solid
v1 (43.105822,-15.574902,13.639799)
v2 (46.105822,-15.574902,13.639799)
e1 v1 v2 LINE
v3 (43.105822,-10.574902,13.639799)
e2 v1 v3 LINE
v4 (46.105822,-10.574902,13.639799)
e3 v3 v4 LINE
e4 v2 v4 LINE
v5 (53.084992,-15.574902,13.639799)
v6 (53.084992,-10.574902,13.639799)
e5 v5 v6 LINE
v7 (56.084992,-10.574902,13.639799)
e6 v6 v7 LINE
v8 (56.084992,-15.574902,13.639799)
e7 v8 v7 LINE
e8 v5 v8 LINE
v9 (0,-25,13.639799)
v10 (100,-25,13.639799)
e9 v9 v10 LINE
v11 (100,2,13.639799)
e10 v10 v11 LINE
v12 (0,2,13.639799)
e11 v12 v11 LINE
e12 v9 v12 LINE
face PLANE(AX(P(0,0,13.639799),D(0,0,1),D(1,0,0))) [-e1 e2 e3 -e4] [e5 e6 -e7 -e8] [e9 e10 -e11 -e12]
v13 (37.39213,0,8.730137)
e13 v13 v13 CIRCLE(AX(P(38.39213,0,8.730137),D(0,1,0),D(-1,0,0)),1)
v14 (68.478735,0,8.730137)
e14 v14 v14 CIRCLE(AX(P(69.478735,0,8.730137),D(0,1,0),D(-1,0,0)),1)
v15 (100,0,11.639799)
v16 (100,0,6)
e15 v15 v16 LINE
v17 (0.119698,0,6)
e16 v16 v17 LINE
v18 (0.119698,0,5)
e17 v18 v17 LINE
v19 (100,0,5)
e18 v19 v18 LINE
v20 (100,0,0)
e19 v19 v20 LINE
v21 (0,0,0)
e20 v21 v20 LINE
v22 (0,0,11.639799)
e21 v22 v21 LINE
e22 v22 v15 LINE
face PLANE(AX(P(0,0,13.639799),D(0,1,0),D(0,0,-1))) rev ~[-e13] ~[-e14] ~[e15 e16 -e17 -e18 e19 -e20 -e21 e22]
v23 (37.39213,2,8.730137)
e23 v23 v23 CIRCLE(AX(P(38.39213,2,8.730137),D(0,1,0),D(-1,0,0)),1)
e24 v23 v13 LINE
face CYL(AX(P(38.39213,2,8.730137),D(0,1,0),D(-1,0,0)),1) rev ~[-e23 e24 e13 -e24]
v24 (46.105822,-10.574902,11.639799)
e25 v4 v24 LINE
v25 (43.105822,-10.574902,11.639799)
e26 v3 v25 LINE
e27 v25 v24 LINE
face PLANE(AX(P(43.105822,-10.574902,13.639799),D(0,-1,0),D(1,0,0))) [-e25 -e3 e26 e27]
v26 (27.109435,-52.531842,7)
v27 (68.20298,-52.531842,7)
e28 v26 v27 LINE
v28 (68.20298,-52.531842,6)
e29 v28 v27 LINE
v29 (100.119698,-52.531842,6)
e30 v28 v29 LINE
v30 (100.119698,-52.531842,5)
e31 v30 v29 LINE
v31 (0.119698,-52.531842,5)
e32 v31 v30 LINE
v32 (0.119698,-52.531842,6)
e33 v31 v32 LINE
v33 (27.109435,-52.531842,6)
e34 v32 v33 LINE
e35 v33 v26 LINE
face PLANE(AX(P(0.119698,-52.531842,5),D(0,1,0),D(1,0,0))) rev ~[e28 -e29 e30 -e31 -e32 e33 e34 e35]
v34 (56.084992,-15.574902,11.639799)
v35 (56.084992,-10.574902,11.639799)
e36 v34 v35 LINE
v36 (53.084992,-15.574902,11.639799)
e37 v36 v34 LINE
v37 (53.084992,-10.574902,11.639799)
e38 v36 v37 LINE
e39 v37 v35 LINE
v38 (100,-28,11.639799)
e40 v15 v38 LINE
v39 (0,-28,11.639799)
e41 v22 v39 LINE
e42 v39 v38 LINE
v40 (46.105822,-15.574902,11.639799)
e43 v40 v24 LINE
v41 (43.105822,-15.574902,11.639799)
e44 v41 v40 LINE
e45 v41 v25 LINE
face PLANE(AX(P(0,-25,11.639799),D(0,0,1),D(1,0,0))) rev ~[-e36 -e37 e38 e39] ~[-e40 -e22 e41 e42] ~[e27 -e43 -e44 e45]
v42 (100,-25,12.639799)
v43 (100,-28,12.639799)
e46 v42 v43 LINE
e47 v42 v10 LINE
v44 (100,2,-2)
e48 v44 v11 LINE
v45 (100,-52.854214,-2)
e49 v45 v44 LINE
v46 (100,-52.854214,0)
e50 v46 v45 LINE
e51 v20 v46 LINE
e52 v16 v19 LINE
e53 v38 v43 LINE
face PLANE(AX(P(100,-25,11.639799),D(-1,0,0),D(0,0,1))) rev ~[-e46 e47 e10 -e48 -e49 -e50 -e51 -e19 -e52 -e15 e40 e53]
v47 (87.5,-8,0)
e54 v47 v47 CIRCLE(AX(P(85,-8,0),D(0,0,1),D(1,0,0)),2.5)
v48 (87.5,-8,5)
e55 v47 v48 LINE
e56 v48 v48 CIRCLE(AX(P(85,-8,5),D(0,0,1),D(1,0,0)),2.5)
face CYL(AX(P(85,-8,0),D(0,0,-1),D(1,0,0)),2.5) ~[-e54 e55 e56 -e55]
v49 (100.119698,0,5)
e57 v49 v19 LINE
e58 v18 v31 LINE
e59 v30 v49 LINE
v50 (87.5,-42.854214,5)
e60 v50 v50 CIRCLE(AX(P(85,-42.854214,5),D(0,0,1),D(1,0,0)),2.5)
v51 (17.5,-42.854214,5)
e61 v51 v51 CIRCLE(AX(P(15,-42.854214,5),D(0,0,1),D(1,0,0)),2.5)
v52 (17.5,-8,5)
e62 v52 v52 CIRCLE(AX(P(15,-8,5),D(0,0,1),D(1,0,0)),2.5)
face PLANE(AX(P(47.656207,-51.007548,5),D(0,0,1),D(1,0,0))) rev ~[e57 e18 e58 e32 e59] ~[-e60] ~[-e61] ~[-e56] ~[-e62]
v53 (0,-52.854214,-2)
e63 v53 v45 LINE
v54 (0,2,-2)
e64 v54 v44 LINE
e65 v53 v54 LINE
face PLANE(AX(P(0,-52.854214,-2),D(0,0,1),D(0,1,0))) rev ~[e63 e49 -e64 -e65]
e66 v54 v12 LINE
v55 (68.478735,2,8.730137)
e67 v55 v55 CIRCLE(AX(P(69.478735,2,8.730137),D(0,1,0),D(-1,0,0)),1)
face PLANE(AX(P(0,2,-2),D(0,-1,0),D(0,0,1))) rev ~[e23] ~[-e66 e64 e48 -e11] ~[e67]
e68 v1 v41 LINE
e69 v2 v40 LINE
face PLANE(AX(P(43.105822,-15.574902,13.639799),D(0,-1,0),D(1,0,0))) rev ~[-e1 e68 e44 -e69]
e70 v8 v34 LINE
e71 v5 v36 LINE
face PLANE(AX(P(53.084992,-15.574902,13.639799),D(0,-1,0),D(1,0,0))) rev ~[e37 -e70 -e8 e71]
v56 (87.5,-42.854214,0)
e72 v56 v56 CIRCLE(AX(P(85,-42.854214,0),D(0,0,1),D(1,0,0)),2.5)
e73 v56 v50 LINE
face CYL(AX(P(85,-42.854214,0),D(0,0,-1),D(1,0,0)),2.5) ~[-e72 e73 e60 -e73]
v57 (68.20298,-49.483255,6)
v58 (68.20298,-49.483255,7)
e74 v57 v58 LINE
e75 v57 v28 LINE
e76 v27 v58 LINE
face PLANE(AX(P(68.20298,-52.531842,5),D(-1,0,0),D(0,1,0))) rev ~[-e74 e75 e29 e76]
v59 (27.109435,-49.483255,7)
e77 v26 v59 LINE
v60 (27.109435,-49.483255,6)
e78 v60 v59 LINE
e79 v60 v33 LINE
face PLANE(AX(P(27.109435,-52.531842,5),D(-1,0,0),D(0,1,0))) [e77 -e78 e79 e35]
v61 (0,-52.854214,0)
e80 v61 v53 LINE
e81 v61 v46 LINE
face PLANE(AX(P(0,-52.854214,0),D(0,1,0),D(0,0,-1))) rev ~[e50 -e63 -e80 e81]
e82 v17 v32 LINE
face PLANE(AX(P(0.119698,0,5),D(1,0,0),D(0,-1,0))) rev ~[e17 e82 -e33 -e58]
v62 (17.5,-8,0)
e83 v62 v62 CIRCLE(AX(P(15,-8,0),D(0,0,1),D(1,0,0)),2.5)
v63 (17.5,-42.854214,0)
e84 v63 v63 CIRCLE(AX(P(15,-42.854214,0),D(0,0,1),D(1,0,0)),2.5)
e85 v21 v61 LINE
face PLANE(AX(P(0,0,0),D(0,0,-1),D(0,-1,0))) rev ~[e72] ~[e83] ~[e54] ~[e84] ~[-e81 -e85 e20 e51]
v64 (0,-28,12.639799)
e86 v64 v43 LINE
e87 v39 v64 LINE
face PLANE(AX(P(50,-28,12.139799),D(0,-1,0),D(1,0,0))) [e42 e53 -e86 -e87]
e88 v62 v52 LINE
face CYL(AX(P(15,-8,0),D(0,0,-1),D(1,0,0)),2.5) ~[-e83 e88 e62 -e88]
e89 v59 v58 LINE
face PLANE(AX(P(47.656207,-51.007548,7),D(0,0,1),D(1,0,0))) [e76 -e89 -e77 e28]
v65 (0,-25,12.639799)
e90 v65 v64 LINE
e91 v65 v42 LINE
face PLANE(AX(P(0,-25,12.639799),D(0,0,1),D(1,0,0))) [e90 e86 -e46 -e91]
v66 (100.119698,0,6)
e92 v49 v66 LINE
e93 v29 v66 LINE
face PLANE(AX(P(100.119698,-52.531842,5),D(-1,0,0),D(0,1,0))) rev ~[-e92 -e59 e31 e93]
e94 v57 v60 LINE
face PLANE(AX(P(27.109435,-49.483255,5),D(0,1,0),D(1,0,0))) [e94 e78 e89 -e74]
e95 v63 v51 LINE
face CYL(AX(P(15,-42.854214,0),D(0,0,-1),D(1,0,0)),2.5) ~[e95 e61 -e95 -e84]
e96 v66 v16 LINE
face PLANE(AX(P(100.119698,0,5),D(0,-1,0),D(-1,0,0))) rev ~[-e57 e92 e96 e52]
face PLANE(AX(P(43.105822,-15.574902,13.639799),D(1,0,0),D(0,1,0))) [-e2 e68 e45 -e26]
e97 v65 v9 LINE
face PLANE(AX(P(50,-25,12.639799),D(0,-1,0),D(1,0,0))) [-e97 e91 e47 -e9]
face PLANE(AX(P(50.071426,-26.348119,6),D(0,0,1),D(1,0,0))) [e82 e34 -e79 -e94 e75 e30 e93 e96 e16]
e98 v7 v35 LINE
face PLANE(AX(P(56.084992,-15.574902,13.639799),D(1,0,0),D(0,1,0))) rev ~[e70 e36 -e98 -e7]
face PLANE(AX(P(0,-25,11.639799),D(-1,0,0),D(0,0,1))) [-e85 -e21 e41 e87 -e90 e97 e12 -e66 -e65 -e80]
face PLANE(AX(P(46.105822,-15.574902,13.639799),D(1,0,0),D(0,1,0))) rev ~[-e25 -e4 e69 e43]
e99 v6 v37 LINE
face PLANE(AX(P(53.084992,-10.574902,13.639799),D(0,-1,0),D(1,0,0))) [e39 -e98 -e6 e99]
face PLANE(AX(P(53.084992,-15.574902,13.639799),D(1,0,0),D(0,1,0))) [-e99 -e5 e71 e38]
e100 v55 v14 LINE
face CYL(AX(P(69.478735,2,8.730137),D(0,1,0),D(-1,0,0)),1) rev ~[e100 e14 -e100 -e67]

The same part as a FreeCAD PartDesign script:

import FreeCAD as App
import Part
import Sketcher
from FreeCAD import Vector


def add_polygon(sketch, points):
    """Adds a closed chain of lines whose ends are joined by coincident constraints."""
    first, n = sketch.GeometryCount, len(points)
    for a, b in zip(points, points[1:] + points[:1]):
        sketch.addGeometry(Part.LineSegment(App.Vector(*a, 0), App.Vector(*b, 0)), False)
    for i in range(n):
        sketch.addConstraint(Sketcher.Constraint("Coincident", first + i, 2, first + (i + 1) % n, 1))

doc = App.newDocument("Part")
body = doc.addObject("PartDesign::Body", "Body")

sketch1 = body.newObject("Sketcher::SketchObject", "Sketch")
sketch1.AttachmentSupport = (doc.getObject("YZ_Plane"), [""])
sketch1.MapMode = "FlatFace"
add_polygon(sketch1, [(0, 0), (-52.9, 0), (-52.9, -2), (2, -2), (2, 13.6), (0, 13.6)])
sketch1.addConstraint([
    Sketcher.Constraint("Horizontal", 0),
    Sketcher.Constraint("Vertical", 1),
    Sketcher.Constraint("Horizontal", 2),
    Sketcher.Constraint("Vertical", 3),
    Sketcher.Constraint("Horizontal", 4),
    Sketcher.Constraint("Vertical", 5),
    Sketcher.Constraint("Coincident", 5, 2, -1, 1),
    Sketcher.Constraint("Equal", 4, 1),
    Sketcher.Constraint("DistanceX", 4, 2, 4, 1, 2.0),
    Sketcher.Constraint("DistanceY", 3, 1, 3, 2, 15.639799),
    Sketcher.Constraint("DistanceX", 0, 2, 0, 1, 52.854214),
])
pad1 = body.newObject("PartDesign::Pad", "Pad")
pad1.Profile = sketch1
pad1.Length = 100

sketch2 = body.newObject("Sketcher::SketchObject", "Sketch001")
sketch2.AttachmentSupport = (doc.getObject("XZ_Plane"), [""])
sketch2.MapMode = "FlatFace"
add_polygon(sketch2, [(0, 13.6), (0, 11.6), (100, 11.6), (100, 13.6)])
sketch2.addConstraint([
    Sketcher.Constraint("Vertical", 0),
    Sketcher.Constraint("Horizontal", 1),
    Sketcher.Constraint("Vertical", 2),
    Sketcher.Constraint("Horizontal", 3),
    Sketcher.Constraint("PointOnObject", 0, 2, -2),
    Sketcher.Constraint("DistanceX", 1, 1, 1, 2, 100.0),
    Sketcher.Constraint("DistanceY", 0, 2, 0, 1, 2.0),
    Sketcher.Constraint("DistanceY", -1, 1, 0, 2, 11.639799),
])
pad2 = body.newObject("PartDesign::Pad", "Pad001")
pad2.Profile = sketch2
pad2.Length = 25

sketch3 = body.newObject("Sketcher::SketchObject", "Sketch002")
sketch3.AttachmentSupport = (doc.getObject("XY_Plane"), [""])
sketch3.MapMode = "FlatFace"
sketch3.addGeometry(Part.Circle(Vector(15, -42.9, 0), Vector(0, 0, 1), 2.5), False)
sketch3.addConstraint([
    Sketcher.Constraint("Diameter", 0, 5.0),
    Sketcher.Constraint("DistanceX", -1, 1, 0, 3, 15.0),
    Sketcher.Constraint("DistanceY", 0, 3, -1, 1, 42.854214),
])
pad3 = body.newObject("PartDesign::Pad", "Pad002")
pad3.Profile = sketch3
pad3.Length = 5

sketch4 = body.newObject("Sketcher::SketchObject", "Sketch003")
sketch4.AttachmentSupport = (doc.getObject("XY_Plane"), [""])
sketch4.MapMode = "FlatFace"
sketch4.addGeometry([
    Part.Circle(Vector(15, -42.9, 0), Vector(0, 0, 1), 2.5),
    Part.Circle(Vector(85, -42.9, 0), Vector(0, 0, 1), 2.5),
    Part.Circle(Vector(15, -8, 0), Vector(0, 0, 1), 2.5),
    Part.Circle(Vector(85, -8, 0), Vector(0, 0, 1), 2.5),
], False)
sketch4.addConstraint([
    Sketcher.Constraint("Equal", 0, 1),
    Sketcher.Constraint("Equal", 1, 2),
    Sketcher.Constraint("Equal", 2, 3),
    Sketcher.Constraint("Horizontal", 0, 3, 1, 3),
    Sketcher.Constraint("Horizontal", 2, 3, 3, 3),
    Sketcher.Constraint("Vertical", 0, 3, 2, 3),
    Sketcher.Constraint("Vertical", 1, 3, 3, 3),
    Sketcher.Constraint("Diameter", 0, 5.0),
    Sketcher.Constraint("DistanceX", -1, 1, 0, 3, 15.0),
    Sketcher.Constraint("DistanceX", -1, 1, 1, 3, 85.0),
    Sketcher.Constraint("DistanceY", 2, 3, -1, 1, 8.0),
    Sketcher.Constraint("DistanceY", 0, 3, -1, 1, 42.854214),
])
pad4 = body.newObject("PartDesign::Pad", "Pad003")
pad4.Profile = sketch4
pad4.Length = 5

sketch5 = body.newObject("Sketcher::SketchObject", "Sketch004")
sketch5.AttachmentSupport = (doc.getObject("XY_Plane"), [""])
sketch5.MapMode = "FlatFace"
sketch5.AttachmentOffset = App.Placement(Vector(0, 0, 13.639799), App.Rotation())
add_polygon(sketch5, [(53.1, -10.6), (53.1, -15.6), (56.1, -15.6), (56.1, -10.6)])
add_polygon(sketch5, [(43.1, -10.6), (43.1, -15.6), (46.1, -15.6), (46.1, -10.6)])
sketch5.addConstraint([
    Sketcher.Constraint("Vertical", 0),
    Sketcher.Constraint("Horizontal", 1),
    Sketcher.Constraint("Vertical", 2),
    Sketcher.Constraint("Horizontal", 3),
    Sketcher.Constraint("Vertical", 4),
    Sketcher.Constraint("Horizontal", 5),
    Sketcher.Constraint("Vertical", 6),
    Sketcher.Constraint("Horizontal", 7),
    Sketcher.Constraint("Horizontal", 1, 2, 4, 2),
    Sketcher.Constraint("Horizontal", 3, 2, 6, 2),
    Sketcher.Constraint("Equal", 3, 5),
    Sketcher.Constraint("DistanceX", 1, 1, 1, 2, 3.0),
    Sketcher.Constraint("DistanceY", 0, 2, 0, 1, 5.0),
    Sketcher.Constraint("DistanceX", -1, 1, 0, 2, 53.084992),
    Sketcher.Constraint("DistanceX", 4, 2, 0, 2, 9.97917),
    Sketcher.Constraint("DistanceY", 0, 2, -1, 1, 15.574902),
])
pocket1 = body.newObject("PartDesign::Pocket", "Pocket")
pocket1.Profile = sketch5
pocket1.Length = 2

sketch6 = body.newObject("Sketcher::SketchObject", "Sketch005")
sketch6.AttachmentSupport = (doc.getObject("XZ_Plane"), [""])
sketch6.MapMode = "FlatFace"
sketch6.AttachmentOffset = App.Placement(Vector(0, 0, 25), App.Rotation())
add_polygon(sketch6, [(0, 12.6), (0, 11.6), (100, 11.6), (100, 12.6)])
sketch6.addConstraint([
    Sketcher.Constraint("Vertical", 0),
    Sketcher.Constraint("Horizontal", 1),
    Sketcher.Constraint("Vertical", 2),
    Sketcher.Constraint("Horizontal", 3),
    Sketcher.Constraint("PointOnObject", 0, 2, -2),
    Sketcher.Constraint("DistanceX", 1, 1, 1, 2, 100.0),
    Sketcher.Constraint("DistanceY", 0, 2, 0, 1, 1.0),
    Sketcher.Constraint("DistanceY", -1, 1, 0, 2, 11.639799),
])
pad5 = body.newObject("PartDesign::Pad", "Pad004")
pad5.Profile = sketch6
pad5.Length = 3

sketch7 = body.newObject("Sketcher::SketchObject", "Sketch006")
sketch7.AttachmentSupport = (doc.getObject("XZ_Plane"), [""])
sketch7.MapMode = "FlatFace"
sketch7.AttachmentOffset = App.Placement(Vector(0, 0, -2), App.Rotation())
sketch7.addGeometry([
    Part.Circle(Vector(69.5, 8.7, 0), Vector(0, 0, 1), 1),
    Part.Circle(Vector(38.4, 8.7, 0), Vector(0, 0, 1), 1),
], False)
sketch7.addConstraint([
    Sketcher.Constraint("Equal", 0, 1),
    Sketcher.Constraint("Horizontal", 0, 3, 1, 3),
    Sketcher.Constraint("Diameter", 0, 2.0),
    Sketcher.Constraint("DistanceX", -1, 1, 1, 3, 38.39213),
    Sketcher.Constraint("DistanceX", -1, 1, 0, 3, 69.478735),
    Sketcher.Constraint("DistanceY", -1, 1, 0, 3, 8.730137),
])
pocket2 = body.newObject("PartDesign::Pocket", "Pocket001")
pocket2.Profile = sketch7
pocket2.Type = "ThroughAll"
pocket2.Reversed = True

sketch8 = body.newObject("Sketcher::SketchObject", "Sketch007")
sketch8.AttachmentSupport = (doc.getObject("XY_Plane"), [""])
sketch8.MapMode = "FlatFace"
sketch8.AttachmentOffset = App.Placement(Vector(0, 0, 5), App.Rotation())
add_polygon(sketch8, [(0, 0), (0, -53), (100, -53), (100, 0)])
sketch8.addConstraint([
    Sketcher.Constraint("Vertical", 0),
    Sketcher.Constraint("Horizontal", 1),
    Sketcher.Constraint("Vertical", 2),
    Sketcher.Constraint("Horizontal", 3),
    Sketcher.Constraint("PointOnObject", 2, 2, -1),
    Sketcher.Constraint("DistanceX", 1, 1, 1, 2, 100.0),
    Sketcher.Constraint("DistanceY", 0, 2, 0, 1, 52.531842),
    Sketcher.Constraint("DistanceX", -1, 1, 0, 2, 0.119698),
])
pad6 = body.newObject("PartDesign::Pad", "Pad005")
pad6.Profile = sketch8
pad6.Length = 1

sketch9 = body.newObject("Sketcher::SketchObject", "Sketch008")
sketch9.AttachmentSupport = (doc.getObject("XY_Plane"), [""])
sketch9.MapMode = "FlatFace"
sketch9.AttachmentOffset = App.Placement(Vector(0, 0, 5), App.Rotation())
add_polygon(sketch9, [(27.1, -49.5), (27.1, -52.5), (68.2, -52.5), (68.2, -49.5)])
sketch9.addConstraint([
    Sketcher.Constraint("Vertical", 0),
    Sketcher.Constraint("Horizontal", 1),
    Sketcher.Constraint("Vertical", 2),
    Sketcher.Constraint("Horizontal", 3),
    Sketcher.Constraint("DistanceX", 1, 1, 1, 2, 41.093545),
    Sketcher.Constraint("DistanceY", 0, 2, 0, 1, 3.048588),
    Sketcher.Constraint("DistanceX", -1, 1, 1, 2, 68.20298),
    Sketcher.Constraint("DistanceY", 0, 2, -1, 1, 52.531842),
])
pad7 = body.newObject("PartDesign::Pad", "Pad006")
pad7.Profile = sketch9
pad7.Length = 2

doc.recompute()
